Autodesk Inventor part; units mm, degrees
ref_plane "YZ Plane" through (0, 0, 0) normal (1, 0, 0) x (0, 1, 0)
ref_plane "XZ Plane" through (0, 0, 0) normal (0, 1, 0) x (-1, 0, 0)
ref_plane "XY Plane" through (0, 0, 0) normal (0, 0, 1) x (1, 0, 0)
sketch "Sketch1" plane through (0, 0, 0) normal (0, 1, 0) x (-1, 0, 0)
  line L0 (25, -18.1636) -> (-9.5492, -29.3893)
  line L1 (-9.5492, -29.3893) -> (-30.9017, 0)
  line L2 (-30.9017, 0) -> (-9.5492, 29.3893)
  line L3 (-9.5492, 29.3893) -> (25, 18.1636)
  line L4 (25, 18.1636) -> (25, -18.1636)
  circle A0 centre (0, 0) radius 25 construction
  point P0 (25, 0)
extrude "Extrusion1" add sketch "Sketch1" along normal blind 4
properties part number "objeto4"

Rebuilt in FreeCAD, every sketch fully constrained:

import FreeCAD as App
import Part
import Sketcher
Q = App.Units.Quantity


def add_polygon(sketch, points):
    """Adds a closed chain of lines whose ends are joined by coincident constraints."""
    first, n = sketch.GeometryCount, len(points)
    for a, b in zip(points, points[1:] + points[:1]):
        sketch.addGeometry(Part.LineSegment(App.Vector(*a, 0), App.Vector(*b, 0)), False)
    for i in range(n):
        sketch.addConstraint(Sketcher.Constraint("Coincident", first + i, 2, first + (i + 1) % n, 1))

doc = App.newDocument("Part")
body = doc.addObject("PartDesign::Body", "Body")

# Sketch on XZ plane
sketch1 = body.newObject("Sketcher::SketchObject", "Sketch")
sketch1.AttachmentSupport = (doc.getObject("XZ_Plane"), [""])
sketch1.MapMode = "FlatFace"
add_polygon(sketch1, [(10, -29), (-25, -18), (-25, 18), (10, 29), (31, 0)])  # lines 0-4
sketch1.addConstraint([
    Sketcher.Constraint("Vertical", 1),
    Sketcher.Constraint("Symmetric", 2, 2, 4, 2, -1),
    Sketcher.Constraint("PointOnObject", 3, 2, -1),
    Sketcher.Constraint("Equal", 0, 2),
    Sketcher.Constraint("Equal", 2, 3),
    Sketcher.Constraint("Angle", 0, Q("162 deg")),
    Sketcher.Constraint("Angle", 3, Q("-54 deg")),
    Sketcher.Constraint("DistanceX", 0, 2, -1, 1, 25.0),
    Sketcher.Constraint("DistanceY", 1, 1, 1, 2, 36.3272),
])
pad1 = body.newObject("PartDesign::Pad", "Pad")
pad1.Profile = sketch1
pad1.Length = 4
pad1.Reversed = True

doc.recompute()
